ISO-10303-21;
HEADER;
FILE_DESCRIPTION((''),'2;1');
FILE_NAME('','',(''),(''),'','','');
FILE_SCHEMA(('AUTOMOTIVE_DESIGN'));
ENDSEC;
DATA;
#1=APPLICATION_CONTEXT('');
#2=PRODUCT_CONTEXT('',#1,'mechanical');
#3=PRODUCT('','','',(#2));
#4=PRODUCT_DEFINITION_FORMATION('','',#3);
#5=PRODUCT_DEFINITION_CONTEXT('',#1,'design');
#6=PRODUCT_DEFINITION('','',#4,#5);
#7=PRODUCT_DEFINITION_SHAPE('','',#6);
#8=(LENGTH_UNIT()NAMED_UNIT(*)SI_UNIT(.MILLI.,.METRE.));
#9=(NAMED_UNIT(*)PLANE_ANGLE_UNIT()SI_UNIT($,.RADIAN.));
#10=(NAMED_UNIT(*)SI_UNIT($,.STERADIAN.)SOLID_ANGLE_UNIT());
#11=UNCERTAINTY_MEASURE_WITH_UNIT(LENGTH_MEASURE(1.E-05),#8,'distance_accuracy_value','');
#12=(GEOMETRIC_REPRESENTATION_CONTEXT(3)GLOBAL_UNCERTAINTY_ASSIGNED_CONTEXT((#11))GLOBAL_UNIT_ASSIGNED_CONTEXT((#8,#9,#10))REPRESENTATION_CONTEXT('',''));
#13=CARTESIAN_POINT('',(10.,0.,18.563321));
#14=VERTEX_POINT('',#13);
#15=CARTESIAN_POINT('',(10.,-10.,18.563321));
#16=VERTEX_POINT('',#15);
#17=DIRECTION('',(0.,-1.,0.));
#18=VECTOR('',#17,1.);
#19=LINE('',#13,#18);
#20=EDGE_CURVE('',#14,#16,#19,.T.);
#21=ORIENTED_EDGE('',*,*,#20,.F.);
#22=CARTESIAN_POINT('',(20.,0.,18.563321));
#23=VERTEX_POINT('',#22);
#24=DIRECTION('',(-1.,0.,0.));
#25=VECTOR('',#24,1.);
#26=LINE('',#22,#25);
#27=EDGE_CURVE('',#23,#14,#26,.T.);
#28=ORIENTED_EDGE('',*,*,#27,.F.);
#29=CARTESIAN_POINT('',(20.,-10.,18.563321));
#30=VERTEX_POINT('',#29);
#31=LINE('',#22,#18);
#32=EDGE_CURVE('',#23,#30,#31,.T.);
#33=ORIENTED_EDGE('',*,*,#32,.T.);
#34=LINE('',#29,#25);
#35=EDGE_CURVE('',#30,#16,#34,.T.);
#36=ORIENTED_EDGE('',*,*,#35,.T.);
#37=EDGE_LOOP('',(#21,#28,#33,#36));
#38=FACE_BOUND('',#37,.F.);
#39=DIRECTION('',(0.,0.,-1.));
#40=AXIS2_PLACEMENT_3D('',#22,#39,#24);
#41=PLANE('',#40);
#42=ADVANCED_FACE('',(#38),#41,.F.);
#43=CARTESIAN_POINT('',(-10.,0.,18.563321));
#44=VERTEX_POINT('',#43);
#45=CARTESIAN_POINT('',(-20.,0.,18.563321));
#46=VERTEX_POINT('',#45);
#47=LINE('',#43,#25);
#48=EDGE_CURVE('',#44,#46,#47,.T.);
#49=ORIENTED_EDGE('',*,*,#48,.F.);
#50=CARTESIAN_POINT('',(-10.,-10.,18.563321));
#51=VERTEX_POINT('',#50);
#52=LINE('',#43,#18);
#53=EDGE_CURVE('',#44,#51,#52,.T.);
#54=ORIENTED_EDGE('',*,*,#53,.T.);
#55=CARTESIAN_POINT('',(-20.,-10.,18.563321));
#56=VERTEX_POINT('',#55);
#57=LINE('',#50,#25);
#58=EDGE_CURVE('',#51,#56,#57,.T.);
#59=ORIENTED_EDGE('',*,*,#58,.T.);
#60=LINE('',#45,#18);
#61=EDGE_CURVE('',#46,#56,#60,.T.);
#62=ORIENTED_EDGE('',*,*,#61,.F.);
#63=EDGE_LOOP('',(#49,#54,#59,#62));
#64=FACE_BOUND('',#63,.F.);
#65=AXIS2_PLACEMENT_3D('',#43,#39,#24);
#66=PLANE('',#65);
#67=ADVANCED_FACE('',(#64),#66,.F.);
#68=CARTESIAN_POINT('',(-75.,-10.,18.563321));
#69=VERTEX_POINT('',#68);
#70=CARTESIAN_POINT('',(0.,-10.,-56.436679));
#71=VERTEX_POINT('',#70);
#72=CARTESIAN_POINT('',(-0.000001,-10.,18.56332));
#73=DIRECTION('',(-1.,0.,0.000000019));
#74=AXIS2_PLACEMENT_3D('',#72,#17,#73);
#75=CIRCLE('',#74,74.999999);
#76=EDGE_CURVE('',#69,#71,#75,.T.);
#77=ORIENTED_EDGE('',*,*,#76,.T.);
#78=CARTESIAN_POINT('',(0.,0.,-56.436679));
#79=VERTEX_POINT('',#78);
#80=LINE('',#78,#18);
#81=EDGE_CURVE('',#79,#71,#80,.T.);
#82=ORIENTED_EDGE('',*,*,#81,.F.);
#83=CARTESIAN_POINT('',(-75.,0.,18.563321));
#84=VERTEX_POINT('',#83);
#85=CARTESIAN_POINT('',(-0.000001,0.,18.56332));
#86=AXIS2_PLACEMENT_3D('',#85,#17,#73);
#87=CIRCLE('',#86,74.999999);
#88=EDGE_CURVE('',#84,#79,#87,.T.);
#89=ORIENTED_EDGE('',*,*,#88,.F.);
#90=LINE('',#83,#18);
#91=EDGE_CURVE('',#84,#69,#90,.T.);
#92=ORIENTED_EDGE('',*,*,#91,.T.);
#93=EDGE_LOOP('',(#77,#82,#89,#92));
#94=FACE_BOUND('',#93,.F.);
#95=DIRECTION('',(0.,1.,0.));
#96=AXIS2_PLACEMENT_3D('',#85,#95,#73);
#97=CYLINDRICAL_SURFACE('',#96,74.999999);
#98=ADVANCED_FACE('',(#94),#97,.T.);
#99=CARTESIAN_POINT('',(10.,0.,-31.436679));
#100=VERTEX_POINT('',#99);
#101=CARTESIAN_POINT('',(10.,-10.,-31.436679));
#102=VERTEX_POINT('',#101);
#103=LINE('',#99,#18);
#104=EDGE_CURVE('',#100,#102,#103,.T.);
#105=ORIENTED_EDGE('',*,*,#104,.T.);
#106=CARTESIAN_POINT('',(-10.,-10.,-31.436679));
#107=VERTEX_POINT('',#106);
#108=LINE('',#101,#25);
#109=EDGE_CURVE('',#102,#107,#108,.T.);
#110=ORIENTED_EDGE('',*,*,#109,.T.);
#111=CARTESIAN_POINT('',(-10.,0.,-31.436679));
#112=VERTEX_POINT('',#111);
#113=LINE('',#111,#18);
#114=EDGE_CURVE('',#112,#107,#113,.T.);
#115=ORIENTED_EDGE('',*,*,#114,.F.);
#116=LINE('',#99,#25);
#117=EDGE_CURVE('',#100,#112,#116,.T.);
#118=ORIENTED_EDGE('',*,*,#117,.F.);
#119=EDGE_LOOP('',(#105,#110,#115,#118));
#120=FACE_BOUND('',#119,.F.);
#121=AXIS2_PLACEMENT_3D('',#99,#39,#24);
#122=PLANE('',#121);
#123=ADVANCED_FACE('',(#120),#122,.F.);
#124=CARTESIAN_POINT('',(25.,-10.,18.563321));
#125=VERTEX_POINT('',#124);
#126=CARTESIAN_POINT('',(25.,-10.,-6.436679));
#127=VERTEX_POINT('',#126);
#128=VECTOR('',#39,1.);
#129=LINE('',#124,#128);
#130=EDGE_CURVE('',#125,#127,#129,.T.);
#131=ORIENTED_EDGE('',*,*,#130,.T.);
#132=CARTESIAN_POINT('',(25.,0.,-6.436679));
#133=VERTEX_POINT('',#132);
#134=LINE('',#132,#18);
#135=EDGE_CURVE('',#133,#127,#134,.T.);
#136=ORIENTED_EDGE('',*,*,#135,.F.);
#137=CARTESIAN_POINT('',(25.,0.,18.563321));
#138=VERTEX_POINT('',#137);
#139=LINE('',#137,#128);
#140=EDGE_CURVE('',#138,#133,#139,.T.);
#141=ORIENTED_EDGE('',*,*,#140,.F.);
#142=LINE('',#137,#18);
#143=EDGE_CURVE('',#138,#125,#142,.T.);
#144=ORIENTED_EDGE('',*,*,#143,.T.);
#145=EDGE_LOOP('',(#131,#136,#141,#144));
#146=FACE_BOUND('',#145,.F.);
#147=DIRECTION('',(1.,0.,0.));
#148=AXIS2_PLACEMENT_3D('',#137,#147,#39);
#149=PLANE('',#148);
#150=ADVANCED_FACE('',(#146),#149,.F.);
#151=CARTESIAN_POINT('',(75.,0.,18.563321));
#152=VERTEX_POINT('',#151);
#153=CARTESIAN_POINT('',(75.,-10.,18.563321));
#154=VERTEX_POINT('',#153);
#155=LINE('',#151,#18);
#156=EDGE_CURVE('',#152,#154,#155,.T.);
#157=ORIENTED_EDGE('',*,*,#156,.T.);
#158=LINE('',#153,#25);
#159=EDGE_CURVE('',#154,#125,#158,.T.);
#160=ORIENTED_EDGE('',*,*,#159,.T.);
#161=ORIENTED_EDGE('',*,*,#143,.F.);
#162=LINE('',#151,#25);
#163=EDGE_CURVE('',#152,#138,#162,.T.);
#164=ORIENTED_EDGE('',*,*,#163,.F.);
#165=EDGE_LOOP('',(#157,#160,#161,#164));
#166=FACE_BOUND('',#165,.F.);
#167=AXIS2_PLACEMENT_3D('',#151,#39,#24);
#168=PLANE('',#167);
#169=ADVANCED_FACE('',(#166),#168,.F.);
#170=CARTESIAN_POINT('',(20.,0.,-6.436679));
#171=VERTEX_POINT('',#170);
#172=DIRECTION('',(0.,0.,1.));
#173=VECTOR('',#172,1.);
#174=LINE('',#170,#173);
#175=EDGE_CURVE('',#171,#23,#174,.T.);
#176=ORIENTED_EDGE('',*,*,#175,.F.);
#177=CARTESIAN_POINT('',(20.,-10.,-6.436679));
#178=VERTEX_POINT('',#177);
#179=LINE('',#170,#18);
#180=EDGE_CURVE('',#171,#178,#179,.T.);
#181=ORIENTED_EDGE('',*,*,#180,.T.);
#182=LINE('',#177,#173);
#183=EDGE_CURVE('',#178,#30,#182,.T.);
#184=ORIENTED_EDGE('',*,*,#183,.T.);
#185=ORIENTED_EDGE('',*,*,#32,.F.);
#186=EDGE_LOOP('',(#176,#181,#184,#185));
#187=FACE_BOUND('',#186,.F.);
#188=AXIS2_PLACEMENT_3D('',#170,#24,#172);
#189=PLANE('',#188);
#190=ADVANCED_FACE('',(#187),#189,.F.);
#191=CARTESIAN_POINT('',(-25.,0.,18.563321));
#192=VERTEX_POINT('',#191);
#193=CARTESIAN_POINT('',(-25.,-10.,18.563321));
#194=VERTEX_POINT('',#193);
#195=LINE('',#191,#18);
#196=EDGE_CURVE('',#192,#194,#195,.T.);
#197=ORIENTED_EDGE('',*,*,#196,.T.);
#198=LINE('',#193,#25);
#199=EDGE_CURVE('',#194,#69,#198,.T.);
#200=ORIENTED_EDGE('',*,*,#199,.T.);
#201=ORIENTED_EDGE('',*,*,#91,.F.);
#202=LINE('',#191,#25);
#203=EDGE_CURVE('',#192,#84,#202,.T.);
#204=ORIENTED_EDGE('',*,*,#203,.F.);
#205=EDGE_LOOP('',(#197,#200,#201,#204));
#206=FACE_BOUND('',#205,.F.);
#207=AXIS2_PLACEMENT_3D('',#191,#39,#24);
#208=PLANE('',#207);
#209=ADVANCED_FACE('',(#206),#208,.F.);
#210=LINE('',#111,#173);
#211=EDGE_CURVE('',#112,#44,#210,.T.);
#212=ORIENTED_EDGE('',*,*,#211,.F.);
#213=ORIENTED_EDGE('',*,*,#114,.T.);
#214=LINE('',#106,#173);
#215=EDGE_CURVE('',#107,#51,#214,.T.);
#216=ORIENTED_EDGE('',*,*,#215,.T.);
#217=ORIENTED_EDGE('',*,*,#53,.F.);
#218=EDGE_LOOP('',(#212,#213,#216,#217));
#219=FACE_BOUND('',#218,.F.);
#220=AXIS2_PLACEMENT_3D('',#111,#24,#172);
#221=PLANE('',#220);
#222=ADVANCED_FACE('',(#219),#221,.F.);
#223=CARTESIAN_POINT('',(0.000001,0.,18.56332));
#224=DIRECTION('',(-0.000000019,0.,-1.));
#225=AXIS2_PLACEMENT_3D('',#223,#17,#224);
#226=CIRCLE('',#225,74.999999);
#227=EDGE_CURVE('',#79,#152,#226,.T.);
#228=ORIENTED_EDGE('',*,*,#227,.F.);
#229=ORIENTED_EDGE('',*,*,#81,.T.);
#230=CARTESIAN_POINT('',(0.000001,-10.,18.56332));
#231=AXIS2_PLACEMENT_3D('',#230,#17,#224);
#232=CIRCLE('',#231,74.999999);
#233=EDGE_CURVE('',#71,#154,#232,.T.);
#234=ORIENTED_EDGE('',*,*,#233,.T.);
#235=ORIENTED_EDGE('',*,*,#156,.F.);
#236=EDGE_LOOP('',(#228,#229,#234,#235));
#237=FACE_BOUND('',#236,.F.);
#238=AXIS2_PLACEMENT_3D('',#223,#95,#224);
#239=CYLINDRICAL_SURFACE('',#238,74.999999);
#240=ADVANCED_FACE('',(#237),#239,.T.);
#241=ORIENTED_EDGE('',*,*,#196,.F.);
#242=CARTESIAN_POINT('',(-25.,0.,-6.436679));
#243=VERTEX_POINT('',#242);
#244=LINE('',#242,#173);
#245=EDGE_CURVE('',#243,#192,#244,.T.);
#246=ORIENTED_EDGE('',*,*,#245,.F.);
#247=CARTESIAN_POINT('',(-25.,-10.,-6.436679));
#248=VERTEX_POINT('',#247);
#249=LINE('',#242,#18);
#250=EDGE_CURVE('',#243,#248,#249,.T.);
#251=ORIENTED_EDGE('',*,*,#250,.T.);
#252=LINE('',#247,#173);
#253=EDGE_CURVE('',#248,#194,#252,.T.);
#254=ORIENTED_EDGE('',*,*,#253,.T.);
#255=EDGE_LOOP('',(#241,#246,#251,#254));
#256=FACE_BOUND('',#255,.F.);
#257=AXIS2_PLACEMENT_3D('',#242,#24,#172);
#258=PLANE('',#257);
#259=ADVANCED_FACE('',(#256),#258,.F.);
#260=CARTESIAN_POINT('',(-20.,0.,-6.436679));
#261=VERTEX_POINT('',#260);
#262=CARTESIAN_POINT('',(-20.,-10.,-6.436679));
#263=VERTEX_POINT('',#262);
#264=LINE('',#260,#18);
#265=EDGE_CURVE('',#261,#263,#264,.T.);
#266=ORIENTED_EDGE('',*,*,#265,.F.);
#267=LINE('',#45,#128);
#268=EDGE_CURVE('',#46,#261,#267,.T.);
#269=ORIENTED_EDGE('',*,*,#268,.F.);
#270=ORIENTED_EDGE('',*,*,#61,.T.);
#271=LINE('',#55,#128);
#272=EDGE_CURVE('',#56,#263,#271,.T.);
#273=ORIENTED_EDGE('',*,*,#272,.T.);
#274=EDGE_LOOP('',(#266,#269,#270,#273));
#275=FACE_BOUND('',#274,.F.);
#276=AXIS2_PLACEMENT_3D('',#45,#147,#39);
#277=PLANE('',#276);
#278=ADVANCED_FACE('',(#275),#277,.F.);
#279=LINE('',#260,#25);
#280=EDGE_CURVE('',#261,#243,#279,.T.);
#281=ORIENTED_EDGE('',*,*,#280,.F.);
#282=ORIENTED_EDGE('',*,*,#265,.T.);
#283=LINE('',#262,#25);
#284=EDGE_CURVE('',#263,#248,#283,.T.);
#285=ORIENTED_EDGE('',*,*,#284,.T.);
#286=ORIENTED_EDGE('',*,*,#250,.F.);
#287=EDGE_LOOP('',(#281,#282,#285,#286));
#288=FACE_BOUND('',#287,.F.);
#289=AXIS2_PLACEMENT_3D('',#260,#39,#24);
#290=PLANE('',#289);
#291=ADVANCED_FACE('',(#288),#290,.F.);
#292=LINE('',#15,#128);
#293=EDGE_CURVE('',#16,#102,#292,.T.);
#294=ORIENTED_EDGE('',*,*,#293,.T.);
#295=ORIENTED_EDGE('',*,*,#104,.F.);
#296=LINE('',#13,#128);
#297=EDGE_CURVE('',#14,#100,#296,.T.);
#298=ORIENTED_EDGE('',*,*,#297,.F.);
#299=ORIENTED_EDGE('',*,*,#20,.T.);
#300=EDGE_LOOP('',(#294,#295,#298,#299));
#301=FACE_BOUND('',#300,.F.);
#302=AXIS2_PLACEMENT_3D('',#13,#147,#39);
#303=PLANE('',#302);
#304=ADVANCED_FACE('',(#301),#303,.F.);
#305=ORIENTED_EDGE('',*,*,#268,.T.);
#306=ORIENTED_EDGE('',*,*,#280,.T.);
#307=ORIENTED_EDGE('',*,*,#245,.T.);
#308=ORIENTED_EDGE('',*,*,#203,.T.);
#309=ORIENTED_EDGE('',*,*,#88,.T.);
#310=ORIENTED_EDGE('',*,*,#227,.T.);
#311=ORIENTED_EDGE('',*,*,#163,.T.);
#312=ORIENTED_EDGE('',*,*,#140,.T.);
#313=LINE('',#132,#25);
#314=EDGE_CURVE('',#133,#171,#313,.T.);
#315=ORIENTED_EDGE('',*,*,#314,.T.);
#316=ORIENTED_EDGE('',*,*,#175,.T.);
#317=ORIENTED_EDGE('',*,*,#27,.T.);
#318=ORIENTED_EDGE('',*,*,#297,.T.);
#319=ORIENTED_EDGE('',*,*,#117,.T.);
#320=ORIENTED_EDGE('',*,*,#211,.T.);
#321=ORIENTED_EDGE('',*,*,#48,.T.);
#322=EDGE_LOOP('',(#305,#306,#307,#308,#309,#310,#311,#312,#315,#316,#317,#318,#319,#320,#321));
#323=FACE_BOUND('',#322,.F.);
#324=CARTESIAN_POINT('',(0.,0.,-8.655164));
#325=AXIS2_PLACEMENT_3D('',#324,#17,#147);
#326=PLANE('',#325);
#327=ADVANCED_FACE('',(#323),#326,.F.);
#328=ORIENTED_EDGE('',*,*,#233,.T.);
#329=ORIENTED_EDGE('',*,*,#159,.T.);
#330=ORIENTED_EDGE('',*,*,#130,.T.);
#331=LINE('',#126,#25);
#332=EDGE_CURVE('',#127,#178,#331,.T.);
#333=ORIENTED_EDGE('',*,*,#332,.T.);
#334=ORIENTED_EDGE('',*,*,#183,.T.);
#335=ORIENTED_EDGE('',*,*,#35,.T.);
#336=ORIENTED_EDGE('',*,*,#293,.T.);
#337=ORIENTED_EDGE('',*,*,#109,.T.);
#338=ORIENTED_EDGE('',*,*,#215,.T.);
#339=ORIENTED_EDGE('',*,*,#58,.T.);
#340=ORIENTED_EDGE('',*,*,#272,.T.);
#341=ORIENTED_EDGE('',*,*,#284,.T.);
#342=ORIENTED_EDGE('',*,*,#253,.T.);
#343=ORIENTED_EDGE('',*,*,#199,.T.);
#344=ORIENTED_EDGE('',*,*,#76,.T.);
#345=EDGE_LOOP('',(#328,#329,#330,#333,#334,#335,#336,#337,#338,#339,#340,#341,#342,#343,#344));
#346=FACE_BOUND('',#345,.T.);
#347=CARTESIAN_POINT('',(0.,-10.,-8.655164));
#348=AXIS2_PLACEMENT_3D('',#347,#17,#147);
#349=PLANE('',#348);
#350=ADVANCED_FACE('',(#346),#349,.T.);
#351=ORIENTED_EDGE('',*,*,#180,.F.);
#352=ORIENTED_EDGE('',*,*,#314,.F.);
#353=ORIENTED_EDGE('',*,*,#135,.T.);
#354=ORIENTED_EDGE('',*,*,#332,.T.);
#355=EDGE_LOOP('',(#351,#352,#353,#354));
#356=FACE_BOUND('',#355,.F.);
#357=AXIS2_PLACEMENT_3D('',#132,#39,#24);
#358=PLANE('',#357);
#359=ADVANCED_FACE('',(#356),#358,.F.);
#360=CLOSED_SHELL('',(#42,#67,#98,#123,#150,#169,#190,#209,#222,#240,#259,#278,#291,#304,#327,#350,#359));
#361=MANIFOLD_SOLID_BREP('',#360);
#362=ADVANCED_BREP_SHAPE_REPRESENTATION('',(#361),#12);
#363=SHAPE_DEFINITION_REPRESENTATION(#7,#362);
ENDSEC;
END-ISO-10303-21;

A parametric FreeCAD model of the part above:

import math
import FreeCAD as App
import Part
import Sketcher
Q = App.Units.Quantity

doc = App.newDocument("Part")
body = doc.addObject("PartDesign::Body", "Body")

# Sketch on XZ plane
sketch1 = doc.addObject("Sketcher::SketchObject", "Sketch")
body.addObject(sketch1)
sketch1.AttachmentSupport = (doc.XZ_Plane, [""])
sketch1.MapMode = "FlatFace"
sketch1.addGeometry(Part.LineSegment(App.Vector(-10, 19, 0), App.Vector(-20, 19, 0)), False)
sketch1.addGeometry(Part.LineSegment(App.Vector(-20, 19, 0), App.Vector(-20, -6, 0)), False)
sketch1.addGeometry(Part.LineSegment(App.Vector(-20, -6, 0), App.Vector(-25, -6, 0)), False)
sketch1.addGeometry(Part.LineSegment(App.Vector(-25, -6, 0), App.Vector(-25, 19, 0)), False)
sketch1.addGeometry(Part.LineSegment(App.Vector(-25, 19, 0), App.Vector(-75, 19, 0)), False)
sketch1.addGeometry(Part.ArcOfCircle(Part.Circle(App.Vector(0, 19, 0), App.Vector(0, 0, 1), 75), math.radians(180), math.radians(270)), False)
sketch1.addGeometry(Part.ArcOfCircle(Part.Circle(App.Vector(0, 19, 0), App.Vector(0, 0, 1), 75), math.radians(-90), math.radians(0)), False)
sketch1.addGeometry(Part.LineSegment(App.Vector(75, 19, 0), App.Vector(25, 19, 0)), False)
sketch1.addGeometry(Part.LineSegment(App.Vector(25, 19, 0), App.Vector(25, -6, 0)), False)
sketch1.addGeometry(Part.LineSegment(App.Vector(25, -6, 0), App.Vector(20, -6, 0)), False)
sketch1.addGeometry(Part.LineSegment(App.Vector(20, -6, 0), App.Vector(20, 19, 0)), False)
sketch1.addGeometry(Part.LineSegment(App.Vector(20, 19, 0), App.Vector(10, 19, 0)), False)
sketch1.addGeometry(Part.LineSegment(App.Vector(10, 19, 0), App.Vector(10, -31, 0)), False)
sketch1.addGeometry(Part.LineSegment(App.Vector(10, -31, 0), App.Vector(-10, -31, 0)), False)
sketch1.addGeometry(Part.LineSegment(App.Vector(-10, -31, 0), App.Vector(-10, 19, 0)), False)
sketch1.addConstraint(Sketcher.Constraint("Coincident", 0, 2, 1, 1))
sketch1.addConstraint(Sketcher.Constraint("Coincident", 1, 2, 2, 1))
sketch1.addConstraint(Sketcher.Constraint("Coincident", 2, 2, 3, 1))
sketch1.addConstraint(Sketcher.Constraint("Coincident", 3, 2, 4, 1))
sketch1.addConstraint(Sketcher.Constraint("Coincident", 4, 2, 5, 1))
sketch1.addConstraint(Sketcher.Constraint("Tangent", 5, 2, 6, 1))
sketch1.addConstraint(Sketcher.Constraint("Coincident", 6, 2, 7, 1))
sketch1.addConstraint(Sketcher.Constraint("Coincident", 7, 2, 8, 1))
sketch1.addConstraint(Sketcher.Constraint("Coincident", 8, 2, 9, 1))
sketch1.addConstraint(Sketcher.Constraint("Coincident", 9, 2, 10, 1))
sketch1.addConstraint(Sketcher.Constraint("Coincident", 10, 2, 11, 1))
sketch1.addConstraint(Sketcher.Constraint("Coincident", 11, 2, 12, 1))
sketch1.addConstraint(Sketcher.Constraint("Coincident", 12, 2, 13, 1))
sketch1.addConstraint(Sketcher.Constraint("Coincident", 13, 2, 14, 1))
sketch1.addConstraint(Sketcher.Constraint("Coincident", 14, 2, 0, 1))
sketch1.addConstraint(Sketcher.Constraint("Horizontal", 0))
sketch1.addConstraint(Sketcher.Constraint("Vertical", 1))
sketch1.addConstraint(Sketcher.Constraint("Horizontal", 2))
sketch1.addConstraint(Sketcher.Constraint("Vertical", 3))
sketch1.addConstraint(Sketcher.Constraint("Horizontal", 4))
sketch1.addConstraint(Sketcher.Constraint("Horizontal", 7))
sketch1.addConstraint(Sketcher.Constraint("Vertical", 8))
sketch1.addConstraint(Sketcher.Constraint("Horizontal", 9))
sketch1.addConstraint(Sketcher.Constraint("Vertical", 10))
sketch1.addConstraint(Sketcher.Constraint("Horizontal", 11))
sketch1.addConstraint(Sketcher.Constraint("Vertical", 12))
sketch1.addConstraint(Sketcher.Constraint("Horizontal", 13))
sketch1.addConstraint(Sketcher.Constraint("Vertical", 14))
sketch1.addConstraint(Sketcher.Constraint("Equal", 5, 6))
sketch1.addConstraint(Sketcher.Constraint("Symmetric", 4, 2, 6, 2, -2))
sketch1.addConstraint(Sketcher.Constraint("Symmetric", 2, 2, 8, 2, -2))
sketch1.addConstraint(Sketcher.Constraint("Symmetric", 0, 2, 10, 2, -2))
sketch1.addConstraint(Sketcher.Constraint("PointOnObject", 5, 2, -2))
sketch1.addConstraint(Sketcher.Constraint("Horizontal", 6, 3, 0, 2))
sketch1.addConstraint(Sketcher.Constraint("Horizontal", 0, 2, 3, 2))
sketch1.addConstraint(Sketcher.Constraint("Equal", 0, 11))
sketch1.addConstraint(Sketcher.Constraint("Equal", 7, 12))
sketch1.addConstraint(Sketcher.Constraint("Radius", 5, Q("74.999999 mm")))
sketch1.addConstraint(Sketcher.Constraint("DistanceX", 0, 2, 0, 1, Q("10 mm")))
sketch1.addConstraint(Sketcher.Constraint("DistanceX", 2, 2, 2, 1, Q("5 mm")))
sketch1.addConstraint(Sketcher.Constraint("DistanceX", 4, 2, 4, 1, Q("50 mm")))
sketch1.addConstraint(Sketcher.Constraint("DistanceY", 1, 2, 1, 1, Q("25 mm")))
sketch1.addConstraint(Sketcher.Constraint("DistanceY", -1, 1, 5, 3, Q("18.56332 mm")))
pad1 = doc.addObject("PartDesign::Pad", "Pad")
body.addObject(pad1)
pad1.Profile = sketch1
pad1.Length = 10

doc.recompute()
